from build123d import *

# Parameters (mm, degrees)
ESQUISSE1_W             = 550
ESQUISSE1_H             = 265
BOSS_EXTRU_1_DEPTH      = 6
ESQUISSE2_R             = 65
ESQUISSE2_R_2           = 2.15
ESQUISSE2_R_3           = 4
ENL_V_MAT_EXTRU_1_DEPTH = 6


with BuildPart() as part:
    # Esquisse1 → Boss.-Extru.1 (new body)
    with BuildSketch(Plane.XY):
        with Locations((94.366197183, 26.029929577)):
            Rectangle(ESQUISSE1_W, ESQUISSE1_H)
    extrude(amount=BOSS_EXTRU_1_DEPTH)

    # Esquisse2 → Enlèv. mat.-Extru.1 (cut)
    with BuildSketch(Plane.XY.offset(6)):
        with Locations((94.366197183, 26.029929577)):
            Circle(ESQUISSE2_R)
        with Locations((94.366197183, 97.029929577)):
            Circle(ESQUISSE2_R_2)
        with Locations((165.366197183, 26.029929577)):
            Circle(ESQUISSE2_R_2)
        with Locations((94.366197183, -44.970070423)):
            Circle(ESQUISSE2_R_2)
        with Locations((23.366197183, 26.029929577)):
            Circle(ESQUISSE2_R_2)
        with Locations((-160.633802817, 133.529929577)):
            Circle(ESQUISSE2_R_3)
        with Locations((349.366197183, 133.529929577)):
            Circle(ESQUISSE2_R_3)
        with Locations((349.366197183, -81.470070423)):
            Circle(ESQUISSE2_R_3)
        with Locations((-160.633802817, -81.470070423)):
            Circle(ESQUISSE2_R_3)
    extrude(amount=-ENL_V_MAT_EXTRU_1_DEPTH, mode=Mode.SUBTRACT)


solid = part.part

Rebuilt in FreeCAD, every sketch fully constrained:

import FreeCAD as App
import Part
import Sketcher
from FreeCAD import Vector
Q = App.Units.Quantity


def add_polygon(sketch, points):
    """Adds a closed chain of lines whose ends are joined by coincident constraints."""
    first, n = sketch.GeometryCount, len(points)
    for a, b in zip(points, points[1:] + points[:1]):
        sketch.addGeometry(Part.LineSegment(App.Vector(*a, 0), App.Vector(*b, 0)), False)
    for i in range(n):
        sketch.addConstraint(Sketcher.Constraint("Coincident", first + i, 2, first + (i + 1) % n, 1))

doc = App.newDocument("Part")
body = doc.addObject("PartDesign::Body", "Body")

# Sketch on XY plane
sketch1 = body.newObject("Sketcher::SketchObject", "Sketch")
sketch1.AttachmentSupport = (doc.getObject("XY_Plane"), [""])
sketch1.MapMode = "FlatFace"
add_polygon(sketch1, [(-181, 159), (-181, -106), (369, -106), (369, 159)])  # lines 0-3
sketch1.addConstraint([
    Sketcher.Constraint("Vertical", 0),
    Sketcher.Constraint("Horizontal", 1),
    Sketcher.Constraint("Vertical", 2),
    Sketcher.Constraint("Horizontal", 3),
    Sketcher.Constraint("DistanceX", 1, 1, 1, 2, Q("550 mm")),
    Sketcher.Constraint("DistanceY", 0, 2, 0, 1, Q("265 mm")),
    Sketcher.Constraint("DistanceY", 0, 2, -1, 1, Q("106.47007 mm")),
    Sketcher.Constraint("DistanceX", 0, 2, -1, 1, Q("180.633803 mm")),
])
pad1 = body.newObject("PartDesign::Pad", "Pad")
pad1.Profile = sketch1
pad1.Length = 6

# Sketch on XY plane
sketch2 = body.newObject("Sketcher::SketchObject", "Sketch001")
sketch2.AttachmentSupport = (doc.getObject("XY_Plane"), [""])
sketch2.MapMode = "FlatFace"
sketch2.AttachmentOffset = App.Placement(Vector(0, 0, 6), App.Rotation())
sketch2.addGeometry([
    Part.Circle(Vector(94.4, 26, 0), Vector(0, 0, 1), 65),  # 0
    Part.Circle(Vector(94.4, 97, 0), Vector(0, 0, 1), 2.1),  # 1
    Part.Circle(Vector(165.4, 26, 0), Vector(0, 0, 1), 2.1),  # 2
    Part.Circle(Vector(94.4, -45, 0), Vector(0, 0, 1), 2.1),  # 3
    Part.Circle(Vector(23.4, 26, 0), Vector(0, 0, 1), 2.1),  # 4
    Part.Circle(Vector(-160.6, 133.5, 0), Vector(0, 0, 1), 4),  # 5
    Part.Circle(Vector(349.4, 133.5, 0), Vector(0, 0, 1), 4),  # 6
    Part.Circle(Vector(349.4, -81.5, 0), Vector(0, 0, 1), 4),  # 7
    Part.Circle(Vector(-160.6, -81.5, 0), Vector(0, 0, 1), 4),  # 8
], False)
sketch2.addConstraint([
    Sketcher.Constraint("Equal", 1, 2),
    Sketcher.Constraint("Equal", 2, 3),
    Sketcher.Constraint("Equal", 3, 4),
    Sketcher.Constraint("Equal", 5, 6),
    Sketcher.Constraint("Equal", 6, 7),
    Sketcher.Constraint("Equal", 7, 8),
    Sketcher.Constraint("Horizontal", 0, 3, 2, 3),
    Sketcher.Constraint("Horizontal", 2, 3, 4, 3),
    Sketcher.Constraint("Horizontal", 5, 3, 6, 3),
    Sketcher.Constraint("Horizontal", 7, 3, 8, 3),
    Sketcher.Constraint("Vertical", 0, 3, 1, 3),
    Sketcher.Constraint("Vertical", 1, 3, 3, 3),
    Sketcher.Constraint("Vertical", 6, 3, 7, 3),
    Sketcher.Constraint("Vertical", 5, 3, 8, 3),
    Sketcher.Constraint("Diameter", 0, Q("130 mm")),
    Sketcher.Constraint("Diameter", 5, Q("8 mm")),
    Sketcher.Constraint("Diameter", 1, Q("4.3 mm")),
    Sketcher.Constraint("DistanceY", 0, 3, 1, 3, Q("71 mm")),
    Sketcher.Constraint("DistanceX", 0, 3, 2, 3, Q("71 mm")),
    Sketcher.Constraint("DistanceY", 3, 3, 0, 3, Q("71 mm")),
    Sketcher.Constraint("DistanceX", 4, 3, 0, 3, Q("71 mm")),
    Sketcher.Constraint("DistanceX", 5, 3, 4, 3, Q("184 mm")),
    Sketcher.Constraint("DistanceX", 2, 3, 6, 3, Q("184 mm")),
    Sketcher.Constraint("DistanceY", 7, 3, 6, 3, Q("215 mm")),
    Sketcher.Constraint("DistanceY", 4, 3, 5, 3, Q("107.5 mm")),
    Sketcher.Constraint("DistanceY", -1, 1, 0, 3, Q("26.02993 mm")),
    Sketcher.Constraint("DistanceX", -1, 1, 0, 3, Q("94.366197 mm")),
])
pocket1 = body.newObject("PartDesign::Pocket", "Pocket")
pocket1.Profile = sketch2
pocket1.Length = 6

doc.recompute()
